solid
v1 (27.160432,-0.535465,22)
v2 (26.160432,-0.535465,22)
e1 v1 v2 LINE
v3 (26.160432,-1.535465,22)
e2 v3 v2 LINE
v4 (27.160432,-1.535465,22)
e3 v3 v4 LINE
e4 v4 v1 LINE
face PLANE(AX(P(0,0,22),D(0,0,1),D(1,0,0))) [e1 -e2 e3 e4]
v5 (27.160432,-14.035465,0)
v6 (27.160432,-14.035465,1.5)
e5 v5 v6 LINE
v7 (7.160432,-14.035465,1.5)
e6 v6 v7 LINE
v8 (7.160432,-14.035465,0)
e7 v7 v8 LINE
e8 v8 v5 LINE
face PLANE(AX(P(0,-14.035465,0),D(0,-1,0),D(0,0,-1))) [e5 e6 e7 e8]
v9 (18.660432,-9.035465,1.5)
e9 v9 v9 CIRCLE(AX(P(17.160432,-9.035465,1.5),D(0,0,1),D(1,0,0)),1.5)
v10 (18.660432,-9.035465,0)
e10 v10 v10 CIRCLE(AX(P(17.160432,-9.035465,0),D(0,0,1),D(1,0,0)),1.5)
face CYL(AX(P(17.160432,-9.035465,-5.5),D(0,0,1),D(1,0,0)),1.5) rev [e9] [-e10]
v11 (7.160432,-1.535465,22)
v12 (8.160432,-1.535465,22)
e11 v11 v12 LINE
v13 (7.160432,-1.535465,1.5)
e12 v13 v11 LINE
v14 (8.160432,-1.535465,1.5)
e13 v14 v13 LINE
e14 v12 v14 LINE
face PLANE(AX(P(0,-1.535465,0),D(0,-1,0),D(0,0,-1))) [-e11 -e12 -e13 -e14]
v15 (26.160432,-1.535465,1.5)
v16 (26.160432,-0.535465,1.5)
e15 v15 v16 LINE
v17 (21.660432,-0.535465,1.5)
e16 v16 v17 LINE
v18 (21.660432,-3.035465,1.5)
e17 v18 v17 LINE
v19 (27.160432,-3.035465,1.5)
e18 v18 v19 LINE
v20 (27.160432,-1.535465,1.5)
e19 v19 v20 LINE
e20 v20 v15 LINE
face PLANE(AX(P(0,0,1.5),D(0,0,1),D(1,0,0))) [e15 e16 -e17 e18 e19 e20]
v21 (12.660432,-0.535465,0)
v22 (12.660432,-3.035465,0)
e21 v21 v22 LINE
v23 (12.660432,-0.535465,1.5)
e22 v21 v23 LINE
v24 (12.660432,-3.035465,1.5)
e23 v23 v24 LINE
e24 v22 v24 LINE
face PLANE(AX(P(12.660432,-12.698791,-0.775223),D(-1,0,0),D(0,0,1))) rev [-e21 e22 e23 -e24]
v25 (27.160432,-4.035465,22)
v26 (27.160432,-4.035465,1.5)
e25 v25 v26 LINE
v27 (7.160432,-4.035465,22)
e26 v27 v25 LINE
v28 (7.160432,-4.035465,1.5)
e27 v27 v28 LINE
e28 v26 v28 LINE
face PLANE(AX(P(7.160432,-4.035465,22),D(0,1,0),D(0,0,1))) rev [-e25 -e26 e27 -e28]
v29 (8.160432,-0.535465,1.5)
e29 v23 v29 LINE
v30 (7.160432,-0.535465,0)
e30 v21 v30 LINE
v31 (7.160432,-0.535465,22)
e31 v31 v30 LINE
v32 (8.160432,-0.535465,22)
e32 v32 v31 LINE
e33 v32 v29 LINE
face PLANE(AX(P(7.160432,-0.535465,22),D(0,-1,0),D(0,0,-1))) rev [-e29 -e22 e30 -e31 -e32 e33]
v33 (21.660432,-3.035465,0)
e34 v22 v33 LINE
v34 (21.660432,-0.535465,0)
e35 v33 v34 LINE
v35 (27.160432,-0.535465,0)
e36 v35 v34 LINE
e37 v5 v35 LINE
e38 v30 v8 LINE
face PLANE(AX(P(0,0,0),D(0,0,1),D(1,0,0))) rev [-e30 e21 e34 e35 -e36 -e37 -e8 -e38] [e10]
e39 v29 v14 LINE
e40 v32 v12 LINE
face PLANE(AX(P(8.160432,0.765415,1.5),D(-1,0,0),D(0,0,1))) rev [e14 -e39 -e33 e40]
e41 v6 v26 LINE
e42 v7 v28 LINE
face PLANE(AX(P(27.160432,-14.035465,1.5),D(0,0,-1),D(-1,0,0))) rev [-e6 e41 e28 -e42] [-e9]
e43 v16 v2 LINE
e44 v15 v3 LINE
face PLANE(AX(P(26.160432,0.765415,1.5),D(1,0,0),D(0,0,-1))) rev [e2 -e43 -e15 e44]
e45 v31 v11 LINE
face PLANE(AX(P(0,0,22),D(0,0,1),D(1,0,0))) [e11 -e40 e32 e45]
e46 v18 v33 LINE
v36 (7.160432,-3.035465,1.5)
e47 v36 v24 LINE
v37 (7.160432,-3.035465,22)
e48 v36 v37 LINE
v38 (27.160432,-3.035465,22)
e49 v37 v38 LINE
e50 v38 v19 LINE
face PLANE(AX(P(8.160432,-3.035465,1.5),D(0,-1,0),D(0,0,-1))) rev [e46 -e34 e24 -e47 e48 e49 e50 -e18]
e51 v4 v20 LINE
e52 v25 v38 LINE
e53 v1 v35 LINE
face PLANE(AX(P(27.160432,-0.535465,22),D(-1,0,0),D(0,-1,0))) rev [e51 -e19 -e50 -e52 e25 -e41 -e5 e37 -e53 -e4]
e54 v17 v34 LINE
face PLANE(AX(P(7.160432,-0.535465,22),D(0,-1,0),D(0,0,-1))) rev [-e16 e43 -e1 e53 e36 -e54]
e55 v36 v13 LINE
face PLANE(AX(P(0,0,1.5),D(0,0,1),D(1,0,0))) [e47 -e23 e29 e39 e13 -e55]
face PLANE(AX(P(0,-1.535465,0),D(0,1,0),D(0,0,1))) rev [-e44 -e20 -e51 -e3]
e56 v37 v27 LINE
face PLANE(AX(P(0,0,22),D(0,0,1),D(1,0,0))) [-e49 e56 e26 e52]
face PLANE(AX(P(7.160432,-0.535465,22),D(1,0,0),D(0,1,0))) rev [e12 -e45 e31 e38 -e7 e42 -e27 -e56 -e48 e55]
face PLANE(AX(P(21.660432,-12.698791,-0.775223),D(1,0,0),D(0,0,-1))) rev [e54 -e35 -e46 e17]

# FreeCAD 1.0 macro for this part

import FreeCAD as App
import Part
import Sketcher


def add_polygon(sketch, points):
    """Adds a closed chain of lines whose ends are joined by coincident constraints."""
    first, n = sketch.GeometryCount, len(points)
    for a, b in zip(points, points[1:] + points[:1]):
        sketch.addGeometry(Part.LineSegment(App.Vector(*a, 0), App.Vector(*b, 0)), False)
    for i in range(n):
        sketch.addConstraint(Sketcher.Constraint("Coincident", first + i, 2, first + (i + 1) % n, 1))

doc = App.newDocument("Part")
params = doc.addObject("Spreadsheet::Sheet", "Params")
for row, (alias, value) in enumerate([
    ("sketch1_width", "20 mm"),
    ("sketch1_height", "3.5 mm"),
    ("pad1_length", "22 mm"),
    ("sketch2_width", "18 mm"),
    ("pocket1_length", "20.5 mm"),
    ("sketch3_width", "1 mm"),
    ("sketch3_height", "20.5 mm"),
    ("pocket2_length", "1.5 mm"),
    ("sketch4_width", "20 mm"),
    ("sketch4_height", "1.5 mm"),
    ("pad2_length", "10 mm"),
    ("sketch5_diameter", "3 mm"),
    ("pocket3_length", "7 mm"),
    ("sketch6_width", "9 mm"),
    ("pocket4_length", "2.5 mm"),
], start=1):
    params.set(f"A{row}", alias)
    params.set(f"B{row}", "=" + value)
    params.setAlias(f"B{row}", alias)

body = doc.addObject("PartDesign::Body", "Body")

# Sketch on XY plane
sketch1 = doc.addObject("Sketcher::SketchObject", "Sketch")
body.addObject(sketch1)
sketch1.AttachmentSupport = (doc.XY_Plane, [""])
sketch1.MapMode = "FlatFace"
add_polygon(sketch1, [(7.2, -0.5), (7.2, -4), (27.2, -4), (27.2, -0.5)])  # lines 0-3
sketch1.addConstraint([
    Sketcher.Constraint("Vertical", 0),
    Sketcher.Constraint("Horizontal", 1),
    Sketcher.Constraint("Vertical", 2),
    Sketcher.Constraint("Horizontal", 3),
    Sketcher.Constraint("DistanceX", 1, 1, 1, 2, 20.0),
    Sketcher.Constraint("DistanceY", 0, 2, 0, 1, 3.5),
    Sketcher.Constraint("DistanceX", -1, 1, 0, 2, 7.160432),
    Sketcher.Constraint("DistanceY", 0, 2, -1, 1, 4.035465),
])
sketch1.setExpression("Constraints[8]", "Params.sketch1_width")
sketch1.setExpression("Constraints[9]", "Params.sketch1_height")
pad1 = doc.addObject("PartDesign::Pad", "Pad")
body.addObject(pad1)
pad1.Profile = sketch1
pad1.setExpression("Length", "Params.pad1_length")

# Sketch on XY plane
sketch2 = doc.addObject("Sketcher::SketchObject", "Sketch001")
body.addObject(sketch2)
sketch2.AttachmentSupport = (doc.XY_Plane, [""])
sketch2.MapMode = "FlatFace"
sketch2.AttachmentOffset = App.Placement(App.Vector(0, 0, 22), App.Rotation())
add_polygon(sketch2, [(8.2, 0.8), (8.2, -3), (26.2, -3), (26.2, 0.8)])  # lines 0-3
sketch2.addConstraint([
    Sketcher.Constraint("Vertical", 0),
    Sketcher.Constraint("Horizontal", 1),
    Sketcher.Constraint("Vertical", 2),
    Sketcher.Constraint("Horizontal", 3),
    Sketcher.Constraint("DistanceX", 1, 1, 1, 2, 18.0),
    Sketcher.Constraint("DistanceY", 0, 2, 0, 1, 3.800879),
    Sketcher.Constraint("DistanceX", -1, 1, 0, 2, 8.160432),
    Sketcher.Constraint("DistanceY", 0, 2, -1, 1, 3.035465),
])
sketch2.setExpression("Constraints[8]", "Params.sketch2_width")
pocket1 = doc.addObject("PartDesign::Pocket", "Pocket")
body.addObject(pocket1)
pocket1.Profile = sketch2
pocket1.setExpression("Length", "Params.pocket1_length")

# Sketch on XZ plane
sketch3 = doc.addObject("Sketcher::SketchObject", "Sketch002")
body.addObject(sketch3)
sketch3.AttachmentSupport = (doc.XZ_Plane, [""])
sketch3.MapMode = "FlatFace"
sketch3.AttachmentOffset = App.Placement(App.Vector(0, 0, 1.535465), App.Rotation())
add_polygon(sketch3, [(7.2, 1.5), (7.2, 22), (8.2, 22), (8.2, 1.5)])  # lines 0-3
add_polygon(sketch3, [(26.2, 1.5), (26.2, 22), (27.2, 22), (27.2, 1.5)])  # lines 4-7
sketch3.addConstraint([
    Sketcher.Constraint("Vertical", 0),
    Sketcher.Constraint("Horizontal", 1),
    Sketcher.Constraint("Vertical", 2),
    Sketcher.Constraint("Horizontal", 3),
    Sketcher.Constraint("Vertical", 4),
    Sketcher.Constraint("Horizontal", 5),
    Sketcher.Constraint("Vertical", 6),
    Sketcher.Constraint("Horizontal", 7),
    Sketcher.Constraint("Horizontal", 1, 2, 4, 2),
    Sketcher.Constraint("Horizontal", 3, 2, 6, 2),
    Sketcher.Constraint("Equal", 3, 5),
    Sketcher.Constraint("DistanceX", 1, 1, 1, 2, 1.0),
    Sketcher.Constraint("DistanceY", 0, 1, 0, 2, 20.5),
    Sketcher.Constraint("DistanceY", -1, 1, 0, 2, 22.0),
    Sketcher.Constraint("DistanceX", 1, 2, 4, 2, 18.0),
    Sketcher.Constraint("DistanceX", -1, 1, 0, 2, 7.160432),
])
sketch3.setExpression("Constraints[19]", "Params.sketch3_width")
sketch3.setExpression("Constraints[20]", "Params.sketch3_height")
pocket2 = doc.addObject("PartDesign::Pocket", "Pocket001")
body.addObject(pocket2)
pocket2.Profile = sketch3
pocket2.setExpression("Length", "Params.pocket2_length")
pocket2.Reversed = True

# Sketch on XZ plane
sketch4 = doc.addObject("Sketcher::SketchObject", "Sketch003")
body.addObject(sketch4)
sketch4.AttachmentSupport = (doc.XZ_Plane, [""])
sketch4.MapMode = "FlatFace"
sketch4.AttachmentOffset = App.Placement(App.Vector(0, 0, 4.035465), App.Rotation())
add_polygon(sketch4, [(7.2, 1.5), (7.2, 0), (27.2, 0), (27.2, 1.5)])  # lines 0-3
sketch4.addConstraint([
    Sketcher.Constraint("Vertical", 0),
    Sketcher.Constraint("Horizontal", 1),
    Sketcher.Constraint("Vertical", 2),
    Sketcher.Constraint("Horizontal", 3),
    Sketcher.Constraint("PointOnObject", 0, 2, -1),
    Sketcher.Constraint("DistanceX", 1, 1, 1, 2, 20.0),
    Sketcher.Constraint("DistanceY", 0, 2, 0, 1, 1.5),
    Sketcher.Constraint("DistanceX", -1, 1, 0, 2, 7.160432),
])
sketch4.setExpression("Constraints[9]", "Params.sketch4_width")
sketch4.setExpression("Constraints[10]", "Params.sketch4_height")
pad2 = doc.addObject("PartDesign::Pad", "Pad001")
body.addObject(pad2)
pad2.Profile = sketch4
pad2.setExpression("Length", "Params.pad2_length")

# Sketch on XY plane
sketch5 = doc.addObject("Sketcher::SketchObject", "Sketch004")
body.addObject(sketch5)
sketch5.AttachmentSupport = (doc.XY_Plane, [""])
sketch5.MapMode = "FlatFace"
sketch5.AttachmentOffset = App.Placement(App.Vector(0, 0, 1.5), App.Rotation())
sketch5.addGeometry(Part.Circle(App.Vector(17.2, -9, 0), App.Vector(0, 0, 1), 1.5), False)
sketch5.addConstraint([
    Sketcher.Constraint("Diameter", 0, 3.0),
    Sketcher.Constraint("DistanceX", -1, 1, 0, 3, 17.160432),
    Sketcher.Constraint("DistanceY", 0, 3, -1, 1, 9.035465),
])
sketch5.setExpression("Constraints[0]", "Params.sketch5_diameter")
pocket3 = doc.addObject("PartDesign::Pocket", "Pocket002")
body.addObject(pocket3)
pocket3.Profile = sketch5
pocket3.setExpression("Length", "Params.pocket3_length")

# Sketch on XZ plane
sketch6 = doc.addObject("Sketcher::SketchObject", "Sketch005")
body.addObject(sketch6)
sketch6.AttachmentSupport = (doc.XZ_Plane, [""])
sketch6.MapMode = "FlatFace"
sketch6.AttachmentOffset = App.Placement(App.Vector(0, 0, 0.535465), App.Rotation())
add_polygon(sketch6, [(12.7, -0.8), (12.7, 2.7), (21.7, 2.7), (21.7, -0.8)])  # lines 0-3
sketch6.addConstraint([
    Sketcher.Constraint("Vertical", 0),
    Sketcher.Constraint("Horizontal", 1),
    Sketcher.Constraint("Vertical", 2),
    Sketcher.Constraint("Horizontal", 3),
    Sketcher.Constraint("DistanceX", 1, 1, 1, 2, 9.0),
    Sketcher.Constraint("DistanceY", 0, 1, 0, 2, 3.518505),
    Sketcher.Constraint("DistanceY", -1, 1, 0, 2, 2.743281),
    Sketcher.Constraint("DistanceX", -1, 1, 0, 2, 12.660432),
])
sketch6.setExpression("Constraints[8]", "Params.sketch6_width")
pocket4 = doc.addObject("PartDesign::Pocket", "Pocket003")
body.addObject(pocket4)
pocket4.Profile = sketch6
pocket4.setExpression("Length", "Params.pocket4_length")
pocket4.Reversed = True

doc.recompute()
